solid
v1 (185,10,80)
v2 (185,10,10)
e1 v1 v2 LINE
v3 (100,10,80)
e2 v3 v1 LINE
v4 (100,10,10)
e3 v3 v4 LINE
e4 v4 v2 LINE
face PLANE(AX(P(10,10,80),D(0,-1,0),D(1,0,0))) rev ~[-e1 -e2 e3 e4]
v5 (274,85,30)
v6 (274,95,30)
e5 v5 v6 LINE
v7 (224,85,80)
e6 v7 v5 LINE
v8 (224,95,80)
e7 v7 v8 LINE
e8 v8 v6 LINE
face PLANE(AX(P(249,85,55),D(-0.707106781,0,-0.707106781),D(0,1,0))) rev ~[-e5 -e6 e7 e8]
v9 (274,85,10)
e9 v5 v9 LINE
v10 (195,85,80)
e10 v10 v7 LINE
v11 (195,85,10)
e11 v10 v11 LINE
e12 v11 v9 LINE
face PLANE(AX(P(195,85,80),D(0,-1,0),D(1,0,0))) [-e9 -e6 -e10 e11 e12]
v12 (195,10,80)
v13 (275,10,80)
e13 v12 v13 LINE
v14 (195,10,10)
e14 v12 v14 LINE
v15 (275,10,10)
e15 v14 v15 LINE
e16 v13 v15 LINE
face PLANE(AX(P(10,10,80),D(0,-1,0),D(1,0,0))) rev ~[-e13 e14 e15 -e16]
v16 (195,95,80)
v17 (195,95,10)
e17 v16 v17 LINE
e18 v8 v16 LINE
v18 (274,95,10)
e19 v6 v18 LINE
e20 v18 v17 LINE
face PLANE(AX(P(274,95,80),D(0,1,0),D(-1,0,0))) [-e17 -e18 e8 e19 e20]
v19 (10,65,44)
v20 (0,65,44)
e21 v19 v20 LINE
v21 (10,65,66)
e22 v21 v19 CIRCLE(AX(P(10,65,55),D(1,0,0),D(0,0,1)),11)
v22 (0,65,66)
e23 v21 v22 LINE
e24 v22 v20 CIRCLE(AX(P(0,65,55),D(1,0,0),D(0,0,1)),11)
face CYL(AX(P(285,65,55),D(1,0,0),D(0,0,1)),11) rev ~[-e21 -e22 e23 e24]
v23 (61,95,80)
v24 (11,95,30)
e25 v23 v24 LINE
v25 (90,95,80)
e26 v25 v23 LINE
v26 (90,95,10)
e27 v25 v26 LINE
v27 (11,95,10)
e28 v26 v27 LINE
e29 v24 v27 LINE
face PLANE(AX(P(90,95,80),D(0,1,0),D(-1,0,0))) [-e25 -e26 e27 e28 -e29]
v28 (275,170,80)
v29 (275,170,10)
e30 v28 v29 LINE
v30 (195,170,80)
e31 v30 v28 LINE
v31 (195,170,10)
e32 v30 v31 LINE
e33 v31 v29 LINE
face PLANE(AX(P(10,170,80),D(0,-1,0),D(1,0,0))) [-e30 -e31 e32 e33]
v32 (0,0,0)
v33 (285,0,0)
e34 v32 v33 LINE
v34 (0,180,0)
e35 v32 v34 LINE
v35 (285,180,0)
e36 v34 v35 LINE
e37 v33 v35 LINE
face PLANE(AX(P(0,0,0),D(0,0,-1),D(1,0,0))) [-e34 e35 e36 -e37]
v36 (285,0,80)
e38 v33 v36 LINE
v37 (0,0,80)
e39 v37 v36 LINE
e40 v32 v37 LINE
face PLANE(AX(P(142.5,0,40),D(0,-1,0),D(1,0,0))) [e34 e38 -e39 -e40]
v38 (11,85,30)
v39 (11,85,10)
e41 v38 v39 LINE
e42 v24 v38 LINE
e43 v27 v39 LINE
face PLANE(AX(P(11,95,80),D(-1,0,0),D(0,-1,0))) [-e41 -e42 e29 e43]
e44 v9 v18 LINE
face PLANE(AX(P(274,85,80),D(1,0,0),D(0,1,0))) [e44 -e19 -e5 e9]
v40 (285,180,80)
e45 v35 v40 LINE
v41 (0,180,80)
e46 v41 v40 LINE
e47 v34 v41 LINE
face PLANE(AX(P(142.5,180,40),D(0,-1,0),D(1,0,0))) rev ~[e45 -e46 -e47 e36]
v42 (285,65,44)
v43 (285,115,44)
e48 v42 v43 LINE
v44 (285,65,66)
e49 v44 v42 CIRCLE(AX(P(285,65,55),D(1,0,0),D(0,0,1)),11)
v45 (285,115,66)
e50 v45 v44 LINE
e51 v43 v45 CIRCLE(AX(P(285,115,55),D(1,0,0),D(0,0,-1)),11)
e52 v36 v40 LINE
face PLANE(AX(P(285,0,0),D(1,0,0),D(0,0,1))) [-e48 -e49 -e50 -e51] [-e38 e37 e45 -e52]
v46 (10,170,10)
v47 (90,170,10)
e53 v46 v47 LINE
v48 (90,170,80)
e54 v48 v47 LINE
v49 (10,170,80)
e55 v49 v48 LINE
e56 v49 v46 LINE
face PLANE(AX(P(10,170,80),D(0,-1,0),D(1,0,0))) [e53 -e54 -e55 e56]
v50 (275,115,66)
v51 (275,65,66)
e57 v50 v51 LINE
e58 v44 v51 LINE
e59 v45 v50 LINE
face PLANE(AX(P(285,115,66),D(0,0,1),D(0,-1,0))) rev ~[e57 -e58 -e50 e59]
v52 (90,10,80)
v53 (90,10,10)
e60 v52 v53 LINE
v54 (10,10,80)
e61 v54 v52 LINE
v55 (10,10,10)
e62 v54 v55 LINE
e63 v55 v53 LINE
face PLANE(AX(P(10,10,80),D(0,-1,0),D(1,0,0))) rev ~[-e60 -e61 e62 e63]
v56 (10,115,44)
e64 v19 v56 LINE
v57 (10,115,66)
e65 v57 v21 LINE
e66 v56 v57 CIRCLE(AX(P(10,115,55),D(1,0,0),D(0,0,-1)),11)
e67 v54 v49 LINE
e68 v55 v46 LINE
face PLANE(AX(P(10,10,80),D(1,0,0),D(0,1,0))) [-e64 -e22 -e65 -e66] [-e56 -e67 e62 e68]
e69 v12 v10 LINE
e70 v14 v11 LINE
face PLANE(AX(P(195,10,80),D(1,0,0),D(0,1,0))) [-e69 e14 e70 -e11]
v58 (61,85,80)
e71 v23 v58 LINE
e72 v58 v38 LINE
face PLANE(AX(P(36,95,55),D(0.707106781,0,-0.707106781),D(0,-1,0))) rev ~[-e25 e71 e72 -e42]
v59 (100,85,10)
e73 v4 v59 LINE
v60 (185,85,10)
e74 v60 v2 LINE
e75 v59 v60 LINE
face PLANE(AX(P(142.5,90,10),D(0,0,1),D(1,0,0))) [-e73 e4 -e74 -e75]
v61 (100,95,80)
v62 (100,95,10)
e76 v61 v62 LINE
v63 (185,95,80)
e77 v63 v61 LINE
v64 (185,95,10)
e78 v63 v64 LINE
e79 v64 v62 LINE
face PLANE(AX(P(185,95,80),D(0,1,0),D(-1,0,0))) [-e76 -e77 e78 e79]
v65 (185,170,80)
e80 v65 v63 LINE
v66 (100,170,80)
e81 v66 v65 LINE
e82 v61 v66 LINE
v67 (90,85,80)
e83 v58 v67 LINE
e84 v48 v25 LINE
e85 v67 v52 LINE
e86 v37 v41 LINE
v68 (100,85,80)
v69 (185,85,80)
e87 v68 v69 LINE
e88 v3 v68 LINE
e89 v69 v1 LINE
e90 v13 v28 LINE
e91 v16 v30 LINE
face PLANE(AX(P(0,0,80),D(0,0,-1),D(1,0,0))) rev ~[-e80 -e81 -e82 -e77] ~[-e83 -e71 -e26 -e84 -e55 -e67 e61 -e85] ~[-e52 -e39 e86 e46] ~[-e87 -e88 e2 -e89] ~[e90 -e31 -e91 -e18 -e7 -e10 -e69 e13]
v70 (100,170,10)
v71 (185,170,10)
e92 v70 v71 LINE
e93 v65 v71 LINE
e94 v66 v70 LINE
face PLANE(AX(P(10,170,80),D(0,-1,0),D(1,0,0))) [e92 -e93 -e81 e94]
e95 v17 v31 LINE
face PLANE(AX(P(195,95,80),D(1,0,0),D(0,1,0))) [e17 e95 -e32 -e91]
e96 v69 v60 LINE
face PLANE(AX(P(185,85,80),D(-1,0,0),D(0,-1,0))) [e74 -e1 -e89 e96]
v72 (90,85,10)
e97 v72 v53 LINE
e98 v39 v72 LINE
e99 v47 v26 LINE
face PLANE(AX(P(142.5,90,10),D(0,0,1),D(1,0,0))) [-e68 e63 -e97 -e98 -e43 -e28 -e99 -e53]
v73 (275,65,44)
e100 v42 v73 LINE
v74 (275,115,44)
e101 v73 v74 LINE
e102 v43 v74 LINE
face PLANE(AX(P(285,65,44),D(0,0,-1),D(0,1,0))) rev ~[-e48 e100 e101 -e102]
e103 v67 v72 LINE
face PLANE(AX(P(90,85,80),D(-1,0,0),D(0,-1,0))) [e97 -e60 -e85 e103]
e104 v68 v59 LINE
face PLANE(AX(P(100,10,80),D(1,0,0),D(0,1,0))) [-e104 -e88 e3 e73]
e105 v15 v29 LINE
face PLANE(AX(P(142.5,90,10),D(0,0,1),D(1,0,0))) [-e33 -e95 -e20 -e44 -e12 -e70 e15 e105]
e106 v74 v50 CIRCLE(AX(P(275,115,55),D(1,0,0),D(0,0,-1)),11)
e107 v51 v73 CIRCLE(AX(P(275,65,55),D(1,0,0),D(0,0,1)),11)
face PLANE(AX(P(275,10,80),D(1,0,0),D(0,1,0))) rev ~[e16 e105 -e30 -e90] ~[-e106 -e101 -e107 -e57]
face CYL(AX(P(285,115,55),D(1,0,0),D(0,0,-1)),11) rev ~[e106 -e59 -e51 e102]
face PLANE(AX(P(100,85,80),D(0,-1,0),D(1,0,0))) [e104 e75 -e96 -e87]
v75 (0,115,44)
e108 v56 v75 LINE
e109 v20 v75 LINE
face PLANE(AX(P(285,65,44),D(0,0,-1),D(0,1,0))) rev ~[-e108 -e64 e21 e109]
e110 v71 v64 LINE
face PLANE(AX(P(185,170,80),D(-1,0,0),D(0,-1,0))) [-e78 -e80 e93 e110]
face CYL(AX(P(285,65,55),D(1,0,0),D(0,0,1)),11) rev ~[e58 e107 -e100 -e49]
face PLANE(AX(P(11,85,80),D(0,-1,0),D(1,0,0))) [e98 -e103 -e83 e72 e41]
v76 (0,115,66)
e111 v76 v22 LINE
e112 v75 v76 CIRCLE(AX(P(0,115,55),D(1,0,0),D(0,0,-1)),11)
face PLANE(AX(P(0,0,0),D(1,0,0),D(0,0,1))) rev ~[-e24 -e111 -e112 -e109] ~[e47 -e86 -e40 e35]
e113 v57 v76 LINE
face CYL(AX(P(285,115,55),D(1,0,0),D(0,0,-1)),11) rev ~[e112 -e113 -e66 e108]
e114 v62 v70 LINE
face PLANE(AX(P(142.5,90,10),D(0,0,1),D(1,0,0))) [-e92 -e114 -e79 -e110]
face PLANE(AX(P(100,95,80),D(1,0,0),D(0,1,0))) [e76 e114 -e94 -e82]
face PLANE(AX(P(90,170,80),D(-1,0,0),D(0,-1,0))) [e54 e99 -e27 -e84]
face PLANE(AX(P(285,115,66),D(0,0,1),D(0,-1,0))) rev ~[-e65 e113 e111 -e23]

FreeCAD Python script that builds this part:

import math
import FreeCAD as App
import Part
import Sketcher
from FreeCAD import Vector
Q = App.Units.Quantity


def edges_at(feature, points):
    """Names of the edges that pass closest to the given points."""
    edges = feature.Shape.Edges
    near = lambda p: min(range(len(edges)), key=lambda i: edges[i].distToShape(Part.Vertex(*p))[0])
    return sorted({f"Edge{near(p) + 1}" for p in points})


def add_polygon(sketch, points):
    """Adds a closed chain of lines whose ends are joined by coincident constraints."""
    first, n = sketch.GeometryCount, len(points)
    for a, b in zip(points, points[1:] + points[:1]):
        sketch.addGeometry(Part.LineSegment(App.Vector(*a, 0), App.Vector(*b, 0)), False)
    for i in range(n):
        sketch.addConstraint(Sketcher.Constraint("Coincident", first + i, 2, first + (i + 1) % n, 1))

doc = App.newDocument("Part")
params = doc.addObject("Spreadsheet::Sheet", "Params")
for row, (alias, value) in enumerate([
    ("sketch1_width", "285 mm"),
    ("sketch1_height", "80 mm"),
    ("pad1_length", "180 mm"),
    ("sketch2_width", "265 mm"),
    ("sketch2_height", "160 mm"),
    ("pocket1_length", "70 mm"),
    ("sketch3_radius", "11 mm"),
    ("sketch3_width", "50 mm"),
    ("sketch4_width", "10 mm"),
    ("sketch4_width2", "79 mm"),
    ("sketch4_width3", "85 mm"),
    ("sketch4_height", "75 mm"),
    ("pad2_length", "70 mm"),
    ("chamfer_size", "50 mm"),
    ("chamfer_size2", "50 mm"),
], start=1):
    params.set(f"A{row}", alias)
    params.set(f"B{row}", "=" + value)
    params.setAlias(f"B{row}", alias)

body = doc.addObject("PartDesign::Body", "Body")

sketch1 = body.newObject("Sketcher::SketchObject", "Sketch")
sketch1.AttachmentSupport = (doc.getObject("XZ_Plane"), [""])
sketch1.MapMode = "FlatFace"
add_polygon(sketch1, [(0, 80), (0, 0), (285, 0), (285, 80)])
sketch1.addConstraint([
    Sketcher.Constraint("Vertical", 0),
    Sketcher.Constraint("Horizontal", 1),
    Sketcher.Constraint("Vertical", 2),
    Sketcher.Constraint("Horizontal", 3),
    Sketcher.Constraint("Coincident", 0, 2, -1, 1),
    Sketcher.Constraint("DistanceX", 1, 1, 1, 2, Q("285 mm")),
    Sketcher.Constraint("DistanceY", 0, 2, 0, 1, Q("80 mm")),
])
sketch1.setExpression("Constraints[9]", "Params.sketch1_width")
sketch1.setExpression("Constraints[10]", "Params.sketch1_height")
pad1 = body.newObject("PartDesign::Pad", "Pad")
pad1.Profile = sketch1
pad1.setExpression("Length", "Params.pad1_length")
pad1.Reversed = True

sketch2 = body.newObject("Sketcher::SketchObject", "Sketch001")
sketch2.AttachmentSupport = (doc.getObject("XY_Plane"), [""])
sketch2.MapMode = "FlatFace"
sketch2.AttachmentOffset = App.Placement(Vector(0, 0, 80), App.Rotation())
add_polygon(sketch2, [(10, 170), (10, 10), (275, 10), (275, 170)])
sketch2.addConstraint([
    Sketcher.Constraint("Vertical", 0),
    Sketcher.Constraint("Horizontal", 1),
    Sketcher.Constraint("Vertical", 2),
    Sketcher.Constraint("Horizontal", 3),
    Sketcher.Constraint("DistanceX", 1, 1, 1, 2, Q("265 mm")),
    Sketcher.Constraint("DistanceY", 0, 2, 0, 1, Q("160 mm")),
    Sketcher.Constraint("DistanceX", -1, 1, 0, 2, Q("10 mm")),
    Sketcher.Constraint("DistanceY", -1, 1, 0, 2, Q("10 mm")),
])
sketch2.setExpression("Constraints[8]", "Params.sketch2_width")
sketch2.setExpression("Constraints[9]", "Params.sketch2_height")
pocket1 = body.newObject("PartDesign::Pocket", "Pocket")
pocket1.Profile = sketch2
pocket1.setExpression("Length", "Params.pocket1_length")

sketch3 = body.newObject("Sketcher::SketchObject", "Sketch002")
sketch3.AttachmentSupport = (doc.getObject("YZ_Plane"), [""])
sketch3.MapMode = "FlatFace"
sketch3.AttachmentOffset = App.Placement(Vector(0, 0, 285), App.Rotation())
sketch3.addGeometry([
    Part.LineSegment(Vector(115, 66, 0), Vector(65, 66, 0)),
    Part.ArcOfCircle(Part.Circle(Vector(65, 55, 0), Vector(0, 0, 1), 11), math.radians(90), math.radians(270)),
    Part.LineSegment(Vector(65, 44, 0), Vector(115, 44, 0)),
    Part.ArcOfCircle(Part.Circle(Vector(115, 55, 0), Vector(0, 0, 1), 11), math.radians(-90), math.radians(90)),
], False)
sketch3.addConstraint([
    Sketcher.Constraint("Tangent", 0, 2, 1, 1),
    Sketcher.Constraint("Tangent", 1, 2, 2, 1),
    Sketcher.Constraint("Tangent", 2, 2, 3, 1),
    Sketcher.Constraint("Tangent", 3, 2, 0, 1),
    Sketcher.Constraint("Horizontal", 0),
    Sketcher.Constraint("Horizontal", 2),
    Sketcher.Constraint("Radius", 1, Q("11 mm")),
    Sketcher.Constraint("DistanceX", 0, 2, 0, 1, Q("50 mm")),
    Sketcher.Constraint("DistanceX", -1, 1, 1, 3, Q("65 mm")),
    Sketcher.Constraint("DistanceY", -1, 1, 1, 3, Q("55 mm")),
])
sketch3.setExpression("Constraints[6]", "Params.sketch3_radius")
sketch3.setExpression("Constraints[7]", "Params.sketch3_width")
pocket2 = body.newObject("PartDesign::Pocket", "Pocket001")
pocket2.Profile = sketch3
pocket2.Type = "ThroughAll"

sketch4 = body.newObject("Sketcher::SketchObject", "Sketch003")
sketch4.AttachmentSupport = (doc.getObject("XY_Plane"), [""])
sketch4.MapMode = "FlatFace"
sketch4.AttachmentOffset = App.Placement(Vector(0, 0, 80), App.Rotation())
add_polygon(sketch4, [(100, 170), (90, 170), (90, 95), (11, 95), (11, 85), (90, 85), (90, 10), (100, 10), (100, 85), (185, 85), (185, 10), (195, 10), (195, 85), (274, 85), (274, 95), (195, 95), (195, 170), (185, 170), (185, 95), (100, 95)])
sketch4.addConstraint([
    Sketcher.Constraint("Horizontal", 0),
    Sketcher.Constraint("Vertical", 1),
    Sketcher.Constraint("Horizontal", 2),
    Sketcher.Constraint("Vertical", 3),
    Sketcher.Constraint("Horizontal", 4),
    Sketcher.Constraint("Vertical", 5),
    Sketcher.Constraint("Horizontal", 6),
    Sketcher.Constraint("Vertical", 7),
    Sketcher.Constraint("Horizontal", 8),
    Sketcher.Constraint("Vertical", 9),
    Sketcher.Constraint("Horizontal", 10),
    Sketcher.Constraint("Vertical", 11),
    Sketcher.Constraint("Horizontal", 12),
    Sketcher.Constraint("Vertical", 13),
    Sketcher.Constraint("Horizontal", 14),
    Sketcher.Constraint("Vertical", 15),
    Sketcher.Constraint("Horizontal", 16),
    Sketcher.Constraint("Vertical", 17),
    Sketcher.Constraint("Horizontal", 18),
    Sketcher.Constraint("Vertical", 19),
    Sketcher.Constraint("Horizontal", 4, 2, 7, 2),
    Sketcher.Constraint("Horizontal", 6, 2, 9, 2),
    Sketcher.Constraint("Horizontal", 8, 2, 11, 2),
    Sketcher.Constraint("Horizontal", 2, 2, 13, 2),
    Sketcher.Constraint("Horizontal", 0, 2, 15, 2),
    Sketcher.Constraint("Horizontal", 14, 2, 17, 2),
    Sketcher.Constraint("Vertical", 1, 2, 4, 2),
    Sketcher.Constraint("Vertical", 11, 2, 14, 2),
    Sketcher.Constraint("Vertical", 9, 2, 16, 2),
    Sketcher.Constraint("Vertical", 7, 2, 18, 2),
    Sketcher.Constraint("Equal", 6, 10),
    Sketcher.Constraint("Equal", 4, 12),
    Sketcher.Constraint("Equal", 16, 3),
    Sketcher.Constraint("Equal", 1, 5),
    Sketcher.Constraint("DistanceX", 0, 2, 0, 1, Q("10 mm")),
    Sketcher.Constraint("DistanceX", 2, 2, 2, 1, Q("79 mm")),
    Sketcher.Constraint("DistanceX", 8, 1, 8, 2, Q("85 mm")),
    Sketcher.Constraint("DistanceY", 1, 2, 1, 1, Q("75 mm")),
    Sketcher.Constraint("DistanceX", -1, 1, 0, 2, Q("90 mm")),
    Sketcher.Constraint("DistanceY", -1, 1, 0, 2, Q("170 mm")),
])
sketch4.setExpression("Constraints[54]", "Params.sketch4_width")
sketch4.setExpression("Constraints[55]", "Params.sketch4_width2")
sketch4.setExpression("Constraints[56]", "Params.sketch4_width3")
sketch4.setExpression("Constraints[57]", "Params.sketch4_height")
pad2 = body.newObject("PartDesign::Pad", "Pad001")
pad2.Profile = sketch4
pad2.setExpression("Length", "Params.pad2_length")
pad2.Reversed = True
doc.recompute()

chamfer = body.newObject("PartDesign::Chamfer", "Chamfer")
chamfer.Base = (pad2, edges_at(pad2, [(11, 90, 80), (274, 90, 80)]))
chamfer.ChamferType = "Two distances"
chamfer.setExpression("Size", "Params.chamfer_size")
chamfer.setExpression("Size2", "Params.chamfer_size2")

doc.recompute()
